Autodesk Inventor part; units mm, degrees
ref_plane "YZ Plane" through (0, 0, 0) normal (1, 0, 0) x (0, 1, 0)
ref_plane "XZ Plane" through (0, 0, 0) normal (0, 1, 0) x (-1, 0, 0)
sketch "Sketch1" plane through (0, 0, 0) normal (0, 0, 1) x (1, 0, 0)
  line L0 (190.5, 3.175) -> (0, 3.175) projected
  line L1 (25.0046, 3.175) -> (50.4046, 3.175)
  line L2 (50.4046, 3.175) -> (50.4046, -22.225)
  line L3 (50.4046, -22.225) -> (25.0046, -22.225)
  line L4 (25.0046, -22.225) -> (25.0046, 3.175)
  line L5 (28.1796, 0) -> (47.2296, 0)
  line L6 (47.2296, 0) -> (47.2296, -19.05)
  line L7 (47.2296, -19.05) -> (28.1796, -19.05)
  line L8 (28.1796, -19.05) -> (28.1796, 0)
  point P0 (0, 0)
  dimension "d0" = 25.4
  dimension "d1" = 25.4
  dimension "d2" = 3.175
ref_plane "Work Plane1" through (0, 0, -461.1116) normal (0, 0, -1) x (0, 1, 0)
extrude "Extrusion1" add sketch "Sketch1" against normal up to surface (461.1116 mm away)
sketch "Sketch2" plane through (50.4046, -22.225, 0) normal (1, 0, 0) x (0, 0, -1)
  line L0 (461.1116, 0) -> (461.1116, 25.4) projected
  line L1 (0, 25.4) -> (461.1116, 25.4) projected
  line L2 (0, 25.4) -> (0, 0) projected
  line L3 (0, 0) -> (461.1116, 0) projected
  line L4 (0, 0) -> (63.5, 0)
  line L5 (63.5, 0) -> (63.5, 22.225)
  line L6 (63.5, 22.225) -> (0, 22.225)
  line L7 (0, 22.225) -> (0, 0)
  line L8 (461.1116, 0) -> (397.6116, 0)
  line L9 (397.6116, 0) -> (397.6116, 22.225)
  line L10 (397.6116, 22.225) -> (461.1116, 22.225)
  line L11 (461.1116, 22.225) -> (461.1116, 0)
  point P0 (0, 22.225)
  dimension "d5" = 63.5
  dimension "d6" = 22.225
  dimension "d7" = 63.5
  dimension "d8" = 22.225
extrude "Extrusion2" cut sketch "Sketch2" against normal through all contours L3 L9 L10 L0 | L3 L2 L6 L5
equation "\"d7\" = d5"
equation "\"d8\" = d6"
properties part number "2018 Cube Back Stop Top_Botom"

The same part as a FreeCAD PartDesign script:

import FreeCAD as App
import Part
import Sketcher

V = App.Vector
Q = App.Units.Quantity

doc = App.newDocument("Part")
params = doc.addObject("Spreadsheet::Sheet", "Params")
for row, (alias, value) in enumerate([
    ("sketch1_width", "1 in"),
    ("pad1_length", "18.154 in"),
    ("sketch2_height", "2.5 in"),
    ("sketch2_width", "0.875 in"),
], start=1):
    params.set(f"A{row}", alias)
    params.set(f"B{row}", "=" + value)
    params.setAlias(f"B{row}", alias)

body = doc.addObject("PartDesign::Body", "Body")

# Sketch on XY plane
sketch1 = body.newObject("Sketcher::SketchObject", "Sketch")
sketch1.AttachmentSupport = (doc.getObject("XY_Plane"), [""])
sketch1.MapMode = "FlatFace"
sketch1.addGeometry([
    Part.LineSegment(V(50.4046, -22.225, 0), V(50.4046, 3.175, 0)),  # 0
    Part.LineSegment(V(50.4046, 3.175, 0), V(25.0046, 3.175, 0)),  # 1
    Part.LineSegment(V(25.0046, 3.175, 0), V(25.0046, -22.225, 0)),  # 2
    Part.LineSegment(V(25.0046, -22.225, 0), V(50.4046, -22.225, 0)),  # 3
    Part.LineSegment(V(28.1796, -19.05, 0), V(28.1796, 0, 0)),  # 4
    Part.LineSegment(V(28.1796, 0, 0), V(47.2296, 0, 0)),  # 5
    Part.LineSegment(V(47.2296, 0, 0), V(47.2296, -19.05, 0)),  # 6
    Part.LineSegment(V(47.2296, -19.05, 0), V(28.1796, -19.05, 0)),  # 7
], False)
sketch1.addConstraint([
    Sketcher.Constraint("Coincident", 0, 2, 1, 1),
    Sketcher.Constraint("Coincident", 1, 2, 2, 1),
    Sketcher.Constraint("Coincident", 2, 2, 3, 1),
    Sketcher.Constraint("Coincident", 3, 2, 0, 1),
    Sketcher.Constraint("Coincident", 4, 2, 5, 1),
    Sketcher.Constraint("Coincident", 5, 2, 6, 1),
    Sketcher.Constraint("Coincident", 6, 2, 7, 1),
    Sketcher.Constraint("Coincident", 7, 2, 4, 1),
    Sketcher.Constraint("Vertical", 0),
    Sketcher.Constraint("Horizontal", 1),
    Sketcher.Constraint("Vertical", 2),
    Sketcher.Constraint("Horizontal", 3),
    Sketcher.Constraint("Vertical", 4),
    Sketcher.Constraint("Horizontal", 5),
    Sketcher.Constraint("Vertical", 6),
    Sketcher.Constraint("Horizontal", 7),
    Sketcher.Constraint("PointOnObject", 4, 2, -1),
    Sketcher.Constraint("Equal", 3, 0),
    Sketcher.Constraint("Equal", 7, 4),
    Sketcher.Constraint("DistanceX", 1, 2, 1, 1, Q("1 in")),
    Sketcher.Constraint("DistanceY", -1, 1, 0, 2, Q("0.125 in")),
    Sketcher.Constraint("DistanceX", 1, 2, 4, 2, Q("0.125 in")),
    Sketcher.Constraint("DistanceX", 5, 2, 0, 2, Q("0.125 in")),
    Sketcher.Constraint("DistanceX", -1, 1, 0, 2, Q("50.4046 mm")),
])
sketch1.setExpression("Constraints[19]", "Params.sketch1_width")
pad1 = body.newObject("PartDesign::Pad", "Pad")
pad1.Profile = sketch1
pad1.setExpression("Length", "Params.pad1_length")
pad1.Reversed = True

# Sketch on YZ plane
sketch2 = body.newObject("Sketcher::SketchObject", "Sketch001")
sketch2.AttachmentSupport = (doc.getObject("YZ_Plane"), [""])
sketch2.MapMode = "FlatFace"
sketch2.AttachmentOffset = App.Placement(V(0, 0, 50.4046), App.Rotation())
sketch2.addGeometry([
    Part.LineSegment(V(-22.225, -397.6116, 0), V(-22.225, -461.1116, 0)),  # 0
    Part.LineSegment(V(-22.225, -461.1116, 0), V(0, -461.1116, 0)),  # 1
    Part.LineSegment(V(0, -461.1116, 0), V(0, -397.6116, 0)),  # 2
    Part.LineSegment(V(0, -397.6116, 0), V(-22.225, -397.6116, 0)),  # 3
    Part.LineSegment(V(-22.225, 0, 0), V(-22.225, -63.5, 0)),  # 4
    Part.LineSegment(V(-22.225, -63.5, 0), V(0, -63.5, 0)),  # 5
    Part.LineSegment(V(0, -63.5, 0), V(0, 0, 0)),  # 6
    Part.LineSegment(V(0, 0, 0), V(-22.225, 0, 0)),  # 7
], False)
sketch2.addConstraint([
    Sketcher.Constraint("Coincident", 0, 2, 1, 1),
    Sketcher.Constraint("Coincident", 1, 2, 2, 1),
    Sketcher.Constraint("Coincident", 2, 2, 3, 1),
    Sketcher.Constraint("Coincident", 3, 2, 0, 1),
    Sketcher.Constraint("Coincident", 4, 2, 5, 1),
    Sketcher.Constraint("Coincident", 5, 2, 6, 1),
    Sketcher.Constraint("Coincident", 6, 2, 7, 1),
    Sketcher.Constraint("Coincident", 7, 2, 4, 1),
    Sketcher.Constraint("Vertical", 0),
    Sketcher.Constraint("Horizontal", 1),
    Sketcher.Constraint("Vertical", 2),
    Sketcher.Constraint("Horizontal", 3),
    Sketcher.Constraint("Vertical", 4),
    Sketcher.Constraint("Horizontal", 5),
    Sketcher.Constraint("Vertical", 6),
    Sketcher.Constraint("Horizontal", 7),
    Sketcher.Constraint("Coincident", 6, 2, -1, 1),
    Sketcher.Constraint("PointOnObject", 1, 2, -2),
    Sketcher.Constraint("Vertical", 3, 2, 4, 2),
    Sketcher.Constraint("Equal", 2, 4),
    Sketcher.Constraint("DistanceY", 0, 2, 0, 1, Q("2.5 in")),
    Sketcher.Constraint("DistanceX", 1, 1, 1, 2, Q("0.875 in")),
    Sketcher.Constraint("DistanceY", 0, 2, -1, 1, Q("18.154 in")),
])
sketch2.setExpression("Constraints[20]", "Params.sketch2_height")
sketch2.setExpression("Constraints[21]", "Params.sketch2_width")
pocket1 = body.newObject("PartDesign::Pocket", "Pocket")
pocket1.Profile = sketch2
pocket1.Type = "ThroughAll"

doc.recompute()
